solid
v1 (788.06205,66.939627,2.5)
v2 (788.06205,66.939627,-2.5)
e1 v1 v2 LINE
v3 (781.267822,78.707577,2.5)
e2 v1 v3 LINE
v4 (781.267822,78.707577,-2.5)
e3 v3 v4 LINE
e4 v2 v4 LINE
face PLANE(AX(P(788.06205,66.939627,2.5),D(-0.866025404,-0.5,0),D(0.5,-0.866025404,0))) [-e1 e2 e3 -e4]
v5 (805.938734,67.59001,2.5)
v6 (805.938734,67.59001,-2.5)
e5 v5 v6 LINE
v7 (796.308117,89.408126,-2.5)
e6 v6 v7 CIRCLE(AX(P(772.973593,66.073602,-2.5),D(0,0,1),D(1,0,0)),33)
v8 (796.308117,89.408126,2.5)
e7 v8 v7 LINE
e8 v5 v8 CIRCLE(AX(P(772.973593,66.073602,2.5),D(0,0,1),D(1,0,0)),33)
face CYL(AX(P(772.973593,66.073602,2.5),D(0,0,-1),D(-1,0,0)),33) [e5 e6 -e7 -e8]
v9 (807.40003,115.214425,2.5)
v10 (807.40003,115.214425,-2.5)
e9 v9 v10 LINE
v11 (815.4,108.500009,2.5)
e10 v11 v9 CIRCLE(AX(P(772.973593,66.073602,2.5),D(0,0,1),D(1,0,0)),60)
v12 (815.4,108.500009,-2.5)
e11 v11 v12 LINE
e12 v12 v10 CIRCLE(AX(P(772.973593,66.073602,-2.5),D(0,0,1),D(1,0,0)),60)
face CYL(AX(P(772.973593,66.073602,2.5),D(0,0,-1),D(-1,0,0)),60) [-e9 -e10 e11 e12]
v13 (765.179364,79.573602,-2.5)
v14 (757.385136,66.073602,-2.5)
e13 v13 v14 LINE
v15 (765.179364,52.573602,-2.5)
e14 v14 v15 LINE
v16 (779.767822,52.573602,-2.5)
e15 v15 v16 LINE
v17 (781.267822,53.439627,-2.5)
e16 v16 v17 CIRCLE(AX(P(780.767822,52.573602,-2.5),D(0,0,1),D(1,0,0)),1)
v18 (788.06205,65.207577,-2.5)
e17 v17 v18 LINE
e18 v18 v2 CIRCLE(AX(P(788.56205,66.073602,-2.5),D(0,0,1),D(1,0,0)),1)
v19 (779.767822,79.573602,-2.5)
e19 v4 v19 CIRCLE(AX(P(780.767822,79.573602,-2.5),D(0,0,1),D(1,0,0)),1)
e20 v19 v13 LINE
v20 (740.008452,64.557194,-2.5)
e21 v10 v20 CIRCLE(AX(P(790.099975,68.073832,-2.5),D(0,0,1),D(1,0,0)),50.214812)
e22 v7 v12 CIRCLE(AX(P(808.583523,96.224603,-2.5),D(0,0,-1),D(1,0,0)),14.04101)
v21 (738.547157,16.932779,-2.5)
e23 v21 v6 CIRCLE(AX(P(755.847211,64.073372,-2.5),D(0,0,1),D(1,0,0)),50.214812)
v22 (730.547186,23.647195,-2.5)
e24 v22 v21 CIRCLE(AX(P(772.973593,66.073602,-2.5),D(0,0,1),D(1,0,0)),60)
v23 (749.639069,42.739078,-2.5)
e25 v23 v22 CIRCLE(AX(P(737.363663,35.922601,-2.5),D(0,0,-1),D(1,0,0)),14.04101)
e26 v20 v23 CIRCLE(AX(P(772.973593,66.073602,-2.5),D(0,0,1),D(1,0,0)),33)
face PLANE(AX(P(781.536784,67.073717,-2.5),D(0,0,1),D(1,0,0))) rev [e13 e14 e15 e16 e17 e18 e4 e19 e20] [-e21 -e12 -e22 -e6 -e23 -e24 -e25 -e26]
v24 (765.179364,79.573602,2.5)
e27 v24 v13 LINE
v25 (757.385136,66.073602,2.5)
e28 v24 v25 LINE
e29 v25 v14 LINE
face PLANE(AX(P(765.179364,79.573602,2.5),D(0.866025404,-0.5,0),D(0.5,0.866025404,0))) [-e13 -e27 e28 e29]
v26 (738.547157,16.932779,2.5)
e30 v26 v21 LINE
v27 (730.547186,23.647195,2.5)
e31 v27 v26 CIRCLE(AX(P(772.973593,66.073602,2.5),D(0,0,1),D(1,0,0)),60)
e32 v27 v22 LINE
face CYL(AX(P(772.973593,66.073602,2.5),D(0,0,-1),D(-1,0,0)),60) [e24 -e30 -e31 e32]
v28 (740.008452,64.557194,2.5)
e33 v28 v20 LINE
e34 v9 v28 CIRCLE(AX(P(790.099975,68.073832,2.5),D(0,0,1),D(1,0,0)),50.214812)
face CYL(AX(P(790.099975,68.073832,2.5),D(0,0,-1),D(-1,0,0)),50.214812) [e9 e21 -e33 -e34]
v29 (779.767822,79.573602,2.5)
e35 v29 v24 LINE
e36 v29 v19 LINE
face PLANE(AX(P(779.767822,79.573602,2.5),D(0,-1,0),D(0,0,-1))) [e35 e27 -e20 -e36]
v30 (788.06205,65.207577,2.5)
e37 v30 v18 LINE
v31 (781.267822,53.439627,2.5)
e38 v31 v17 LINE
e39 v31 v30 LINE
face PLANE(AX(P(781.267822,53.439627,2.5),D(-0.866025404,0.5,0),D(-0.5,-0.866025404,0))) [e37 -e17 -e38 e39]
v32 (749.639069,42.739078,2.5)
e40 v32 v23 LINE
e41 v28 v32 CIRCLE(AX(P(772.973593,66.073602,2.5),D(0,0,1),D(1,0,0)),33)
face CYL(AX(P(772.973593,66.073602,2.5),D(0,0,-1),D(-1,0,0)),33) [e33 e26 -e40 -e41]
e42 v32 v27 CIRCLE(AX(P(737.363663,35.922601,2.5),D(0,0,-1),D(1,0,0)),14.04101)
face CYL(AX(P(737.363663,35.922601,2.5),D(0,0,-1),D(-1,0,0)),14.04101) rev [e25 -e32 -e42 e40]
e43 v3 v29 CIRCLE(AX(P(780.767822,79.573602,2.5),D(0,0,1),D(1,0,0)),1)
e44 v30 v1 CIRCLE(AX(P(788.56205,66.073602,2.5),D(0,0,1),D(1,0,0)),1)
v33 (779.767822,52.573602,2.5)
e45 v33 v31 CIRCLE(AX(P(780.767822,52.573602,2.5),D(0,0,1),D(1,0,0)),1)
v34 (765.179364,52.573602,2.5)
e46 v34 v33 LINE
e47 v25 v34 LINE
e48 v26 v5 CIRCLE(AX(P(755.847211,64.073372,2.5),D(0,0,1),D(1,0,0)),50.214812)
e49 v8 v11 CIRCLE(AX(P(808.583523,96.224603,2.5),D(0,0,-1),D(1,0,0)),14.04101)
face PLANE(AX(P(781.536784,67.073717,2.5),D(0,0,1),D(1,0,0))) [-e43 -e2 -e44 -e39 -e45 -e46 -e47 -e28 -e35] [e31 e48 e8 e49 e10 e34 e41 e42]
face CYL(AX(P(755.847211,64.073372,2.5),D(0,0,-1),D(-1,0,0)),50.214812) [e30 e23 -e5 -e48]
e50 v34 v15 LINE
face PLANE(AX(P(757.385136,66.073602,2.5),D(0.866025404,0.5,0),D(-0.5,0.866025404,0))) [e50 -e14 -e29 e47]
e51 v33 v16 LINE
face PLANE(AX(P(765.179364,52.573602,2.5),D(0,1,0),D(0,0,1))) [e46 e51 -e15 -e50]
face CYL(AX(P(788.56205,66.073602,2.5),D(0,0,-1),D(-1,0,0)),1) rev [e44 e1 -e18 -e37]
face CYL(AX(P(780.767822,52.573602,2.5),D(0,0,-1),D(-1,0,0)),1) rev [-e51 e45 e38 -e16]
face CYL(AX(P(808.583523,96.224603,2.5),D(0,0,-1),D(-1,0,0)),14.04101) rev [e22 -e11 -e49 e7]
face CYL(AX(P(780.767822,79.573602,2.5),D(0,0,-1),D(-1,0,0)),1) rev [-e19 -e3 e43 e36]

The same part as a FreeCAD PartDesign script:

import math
import FreeCAD as App
import Part
import Sketcher
Q = App.Units.Quantity

doc = App.newDocument("Part")
params = doc.addObject("Spreadsheet::Sheet", "Params")
for row, (alias, value) in enumerate([
    ("sketch1_radius", "33 mm"),
    ("sketch1_radius2", "60 mm"),
    ("sketch1_radius3", "1 mm"),
    ("pad1_length", "5 mm"),
], start=1):
    params.set(f"A{row}", alias)
    params.set(f"B{row}", "=" + value)
    params.setAlias(f"B{row}", alias)

body = doc.addObject("PartDesign::Body", "Body")

sketch1 = body.newObject("Sketcher::SketchObject", "Sketch")
sketch1.AttachmentSupport = (doc.getObject("XY_Plane"), [""])
sketch1.MapMode = "FlatFace"
sketch1.addGeometry(Part.ArcOfCircle(Part.Circle(App.Vector(790.1, 68.1, 0), App.Vector(0, 0, 1), 50.2), math.radians(70), math.radians(184)), False)
sketch1.addGeometry(Part.ArcOfCircle(Part.Circle(App.Vector(773, 66.1, 0), App.Vector(0, 0, 1), 33), math.radians(-177), math.radians(-135)), False)
sketch1.addGeometry(Part.ArcOfCircle(Part.Circle(App.Vector(737.4, 35.9, 0), App.Vector(0, 0, 1), 14), math.radians(-119), math.radians(29)), False)
sketch1.addGeometry(Part.ArcOfCircle(Part.Circle(App.Vector(773, 66.1, 0), App.Vector(0, 0, 1), 60), math.radians(-135), math.radians(-125.01)), False)
sketch1.addGeometry(Part.ArcOfCircle(Part.Circle(App.Vector(755.8, 64.1, 0), App.Vector(0, 0, 1), 50.2), math.radians(-110), math.radians(4)), False)
sketch1.addGeometry(Part.ArcOfCircle(Part.Circle(App.Vector(773, 66.1, 0), App.Vector(0, 0, 1), 33), math.radians(3), math.radians(45)), False)
sketch1.addGeometry(Part.ArcOfCircle(Part.Circle(App.Vector(808.6, 96.2, 0), App.Vector(0, 0, 1), 14), math.radians(61), math.radians(209)), False)
sketch1.addGeometry(Part.ArcOfCircle(Part.Circle(App.Vector(773, 66.1, 0), App.Vector(0, 0, 1), 60), math.radians(45), math.radians(54.99)), False)
sketch1.addGeometry(Part.LineSegment(App.Vector(781.3, 78.7, 0), App.Vector(788.1, 66.9, 0)), False)
sketch1.addGeometry(Part.ArcOfCircle(Part.Circle(App.Vector(788.6, 66.1, 0), App.Vector(0, 0, 1), 1), math.radians(-120), math.radians(120)), False)
sketch1.addGeometry(Part.LineSegment(App.Vector(788.1, 65.2, 0), App.Vector(781.3, 53.4, 0)), False)
sketch1.addGeometry(Part.ArcOfCircle(Part.Circle(App.Vector(780.8, 52.6, 0), App.Vector(0, 0, 1), 1), math.radians(180), math.radians(420)), False)
sketch1.addGeometry(Part.LineSegment(App.Vector(779.8, 52.6, 0), App.Vector(765.2, 52.6, 0)), False)
sketch1.addGeometry(Part.LineSegment(App.Vector(765.2, 52.6, 0), App.Vector(757.4, 66.1, 0)), False)
sketch1.addGeometry(Part.LineSegment(App.Vector(757.4, 66.1, 0), App.Vector(765.2, 79.6, 0)), False)
sketch1.addGeometry(Part.LineSegment(App.Vector(765.2, 79.6, 0), App.Vector(779.8, 79.6, 0)), False)
sketch1.addGeometry(Part.ArcOfCircle(Part.Circle(App.Vector(780.8, 79.6, 0), App.Vector(0, 0, 1), 1), math.radians(-60), math.radians(180)), False)
sketch1.addConstraint(Sketcher.Constraint("Coincident", 0, 2, 1, 1))
sketch1.addConstraint(Sketcher.Constraint("Coincident", 1, 2, 2, 2))
sketch1.addConstraint(Sketcher.Constraint("Coincident", 2, 1, 3, 1))
sketch1.addConstraint(Sketcher.Constraint("Coincident", 3, 2, 4, 1))
sketch1.addConstraint(Sketcher.Constraint("Coincident", 4, 2, 5, 1))
sketch1.addConstraint(Sketcher.Constraint("Coincident", 5, 2, 6, 2))
sketch1.addConstraint(Sketcher.Constraint("Coincident", 6, 1, 7, 1))
sketch1.addConstraint(Sketcher.Constraint("Coincident", 7, 2, 0, 1))
sketch1.addConstraint(Sketcher.Constraint("Coincident", 8, 2, 9, 2))
sketch1.addConstraint(Sketcher.Constraint("Coincident", 9, 1, 10, 1))
sketch1.addConstraint(Sketcher.Constraint("Coincident", 10, 2, 11, 2))
sketch1.addConstraint(Sketcher.Constraint("Coincident", 11, 1, 12, 1))
sketch1.addConstraint(Sketcher.Constraint("Coincident", 12, 2, 13, 1))
sketch1.addConstraint(Sketcher.Constraint("Coincident", 13, 2, 14, 1))
sketch1.addConstraint(Sketcher.Constraint("Coincident", 14, 2, 15, 1))
sketch1.addConstraint(Sketcher.Constraint("Coincident", 15, 2, 16, 2))
sketch1.addConstraint(Sketcher.Constraint("Coincident", 16, 1, 8, 1))
sketch1.addConstraint(Sketcher.Constraint("Horizontal", 12))
sketch1.addConstraint(Sketcher.Constraint("Horizontal", 15))
sketch1.addConstraint(Sketcher.Constraint("Coincident", 3, 3, 1, 3))
sketch1.addConstraint(Sketcher.Constraint("Coincident", 5, 3, 1, 3))
sketch1.addConstraint(Sketcher.Constraint("Coincident", 7, 3, 1, 3))
sketch1.addConstraint(Sketcher.Constraint("Equal", 0, 4))
sketch1.addConstraint(Sketcher.Constraint("Equal", 1, 5))
sketch1.addConstraint(Sketcher.Constraint("Equal", 2, 6))
sketch1.addConstraint(Sketcher.Constraint("Equal", 3, 7))
sketch1.addConstraint(Sketcher.Constraint("Equal", 9, 11))
sketch1.addConstraint(Sketcher.Constraint("Equal", 11, 16))
sketch1.addConstraint(Sketcher.Constraint("Parallel", 8, 13))
sketch1.addConstraint(Sketcher.Constraint("Parallel", 10, 14))
sketch1.addConstraint(Sketcher.Constraint("Horizontal", 7, 3, 9, 3))
sketch1.addConstraint(Sketcher.Constraint("Horizontal", 9, 3, 13, 2))
sketch1.addConstraint(Sketcher.Constraint("Horizontal", 16, 3, 14, 2))
sketch1.addConstraint(Sketcher.Constraint("Vertical", 11, 3, 16, 3))
sketch1.addConstraint(Sketcher.Constraint("Vertical", 8, 2, 9, 1))
sketch1.addConstraint(Sketcher.Constraint("Vertical", 12, 2, 14, 2))
sketch1.addConstraint(Sketcher.Constraint("Vertical", 10, 2, 16, 1))
sketch1.addConstraint(Sketcher.Constraint("Equal", 8, 10))
sketch1.addConstraint(Sketcher.Constraint("Radius", 1, 33.0))
sketch1.addConstraint(Sketcher.Constraint("Radius", 3, 60.0))
sketch1.addConstraint(Sketcher.Constraint("Radius", 9, 1.0))
sketch1.addConstraint(Sketcher.Constraint("Angle", 8, Q("-60 deg")))
sketch1.addConstraint(Sketcher.Constraint("DistanceX", -1, 1, 6, 1, 815.4))
sketch1.addConstraint(Sketcher.Constraint("DistanceY", 11, 3, 3, 3, 13.5))
sketch1.addConstraint(Sketcher.Constraint("DistanceX", 8, 2, 9, 3, 0.5))
sketch1.addConstraint(Sketcher.Constraint("DistanceX", 11, 3, 10, 2, 0.5))
sketch1.addConstraint(Sketcher.Constraint("Radius", 2, 14.04101))
sketch1.addConstraint(Sketcher.Constraint("DistanceY", 2, 1, 0, 2, 40.909999))
sketch1.addConstraint(Sketcher.Constraint("DistanceY", 4, 2, 6, 1, 40.909999))
sketch1.addConstraint(Sketcher.Constraint("Radius", 0, 50.214812))
sketch1.addConstraint(Sketcher.Constraint("DistanceY", 2, 3, 1, 3, 30.151001))
sketch1.addConstraint(Sketcher.Constraint("DistanceY", 5, 3, 6, 3, 30.151001))
sketch1.addConstraint(Sketcher.Constraint("DistanceY", -1, 1, 1, 3, 66.073602))
sketch1.addConstraint(Sketcher.Constraint("DistanceY", 3, 2, 1, 2, 25.806299))
sketch1.addConstraint(Sketcher.Constraint("DistanceY", 5, 2, 7, 2, 25.806299))
sketch1.addConstraint(Sketcher.Constraint("DistanceX", 12, 2, 12, 1, 14.588457))
sketch1.addConstraint(Sketcher.Constraint("DistanceX", -1, 1, 4, 3, 755.847211))
sketch1.addConstraint(Sketcher.Constraint("DistanceY", -1, 1, 4, 3, 64.073372))
sketch1.addConstraint(Sketcher.Constraint("DistanceX", -1, 1, 9, 3, 788.56205))
sketch1.setExpression("Constraints[38]", "Params.sketch1_radius")
sketch1.setExpression("Constraints[39]", "Params.sketch1_radius2")
sketch1.setExpression("Constraints[40]", "Params.sketch1_radius3")
pad1 = body.newObject("PartDesign::Pad", "Pad")
pad1.Profile = sketch1
pad1.setExpression("Length", "Params.pad1_length")
pad1.Midplane = True

doc.recompute()
